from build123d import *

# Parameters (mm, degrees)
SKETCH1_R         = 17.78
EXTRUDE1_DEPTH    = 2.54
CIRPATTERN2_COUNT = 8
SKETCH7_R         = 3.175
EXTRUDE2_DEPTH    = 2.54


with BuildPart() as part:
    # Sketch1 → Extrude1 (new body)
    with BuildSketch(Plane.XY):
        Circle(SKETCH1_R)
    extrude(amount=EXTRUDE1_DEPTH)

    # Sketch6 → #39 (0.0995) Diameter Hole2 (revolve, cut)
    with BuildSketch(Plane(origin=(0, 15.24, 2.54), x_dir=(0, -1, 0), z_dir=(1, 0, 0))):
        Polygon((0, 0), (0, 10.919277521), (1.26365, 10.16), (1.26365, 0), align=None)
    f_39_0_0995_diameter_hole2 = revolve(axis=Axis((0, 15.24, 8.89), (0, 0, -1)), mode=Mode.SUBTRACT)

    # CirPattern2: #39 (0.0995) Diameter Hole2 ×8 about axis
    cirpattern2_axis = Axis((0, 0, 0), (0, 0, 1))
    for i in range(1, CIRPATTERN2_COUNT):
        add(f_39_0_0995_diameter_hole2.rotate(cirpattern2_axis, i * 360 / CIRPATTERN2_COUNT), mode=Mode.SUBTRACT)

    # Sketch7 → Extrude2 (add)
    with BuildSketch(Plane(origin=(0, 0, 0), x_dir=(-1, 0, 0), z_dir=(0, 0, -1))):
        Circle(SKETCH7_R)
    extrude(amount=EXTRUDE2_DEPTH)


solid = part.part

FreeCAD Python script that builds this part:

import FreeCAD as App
import Part
import Sketcher
from FreeCAD import Vector
Q = App.Units.Quantity

doc = App.newDocument("Part")
body = doc.addObject("PartDesign::Body", "Body")

sketch1 = body.newObject("Sketcher::SketchObject", "Sketch")
sketch1.AttachmentSupport = (doc.getObject("XY_Plane"), [""])
sketch1.MapMode = "FlatFace"
sketch1.addGeometry(Part.Circle(Vector(0, 0, 0), Vector(0, 0, 1), 18), False)
sketch1.addConstraint([
    Sketcher.Constraint("Coincident", 0, 3, -1, 1),
    Sketcher.Constraint("Diameter", 0, Q("1.4 in")),
])
pad1 = body.newObject("PartDesign::Pad", "Pad")
pad1.Profile = sketch1
pad1.Length = Q("0.1 in")

sketch2 = body.newObject("Sketcher::SketchObject", "Sketch001")
sketch2.AttachmentSupport = (doc.getObject("YZ_Plane"), [""])
sketch2.MapMode = "FlatFace"
sketch2.addGeometry([
    Part.LineSegment(Vector(15.2, -8.4, 0), Vector(15.2, 2.5, 0)),
    Part.LineSegment(Vector(15.2, 2.5, 0), Vector(14, 2.5, 0)),
    Part.LineSegment(Vector(14, 2.5, 0), Vector(14, -7.6, 0)),
    Part.LineSegment(Vector(14, -7.6, 0), Vector(15.2, -8.4, 0)),
], False)
sketch2.addGeometry(Part.LineSegment(Vector(15.2, 2.5, 0), Vector(15.2, -8.4, 0)), True)
sketch2.addConstraint([
    Sketcher.Constraint("Coincident", 0, 2, 1, 1),
    Sketcher.Constraint("Coincident", 1, 2, 2, 1),
    Sketcher.Constraint("Coincident", 2, 2, 3, 1),
    Sketcher.Constraint("Coincident", 3, 2, 0, 1),
    Sketcher.Constraint("Vertical", 0),
    Sketcher.Constraint("Horizontal", 1),
    Sketcher.Constraint("Vertical", 2),
    Sketcher.Constraint("Vertical", 4),
    Sketcher.Constraint("Coincident", 4, 1, 0, 2),
    Sketcher.Constraint("Equal", 0, 4),
    Sketcher.Constraint("DistanceY", 2, 2, 2, 1, Q("0.4 in")),
    Sketcher.Constraint("Angle", 3, Q("-31 deg")),
    Sketcher.Constraint("DistanceX", -1, 1, 0, 2, Q("0.6 in")),
    Sketcher.Constraint("DistanceY", -1, 1, 0, 2, Q("0.1 in")),
    Sketcher.Constraint("DistanceX", 1, 2, 1, 1, 1.26365),
])
groove = body.newObject("PartDesign::Groove", "Groove")
groove.Profile = sketch2
groove.ReferenceAxis = (sketch2, ["Axis0"])
groove.Angle = 360
doc.recompute()

polarpattern = body.newObject("PartDesign::PolarPattern", "PolarPattern")
polarpattern.Originals = [groove]
polarpattern.Axis = (doc.getObject("Z_Axis"), [""])
polarpattern.Angle = 360
polarpattern.Occurrences = 8
body.Tip = polarpattern

sketch3 = body.newObject("Sketcher::SketchObject", "Sketch002")
sketch3.AttachmentSupport = (doc.getObject("XY_Plane"), [""])
sketch3.MapMode = "FlatFace"
sketch3.addGeometry(Part.Circle(Vector(0, 0, 0), Vector(0, 0, 1), 3.2), False)
sketch3.addConstraint([
    Sketcher.Constraint("Coincident", 0, 3, -1, 1),
    Sketcher.Constraint("Diameter", 0, Q("0.25 in")),
])
pad2 = body.newObject("PartDesign::Pad", "Pad001")
pad2.Profile = sketch3
pad2.Length = Q("0.1 in")
pad2.Reversed = True

doc.recompute()
